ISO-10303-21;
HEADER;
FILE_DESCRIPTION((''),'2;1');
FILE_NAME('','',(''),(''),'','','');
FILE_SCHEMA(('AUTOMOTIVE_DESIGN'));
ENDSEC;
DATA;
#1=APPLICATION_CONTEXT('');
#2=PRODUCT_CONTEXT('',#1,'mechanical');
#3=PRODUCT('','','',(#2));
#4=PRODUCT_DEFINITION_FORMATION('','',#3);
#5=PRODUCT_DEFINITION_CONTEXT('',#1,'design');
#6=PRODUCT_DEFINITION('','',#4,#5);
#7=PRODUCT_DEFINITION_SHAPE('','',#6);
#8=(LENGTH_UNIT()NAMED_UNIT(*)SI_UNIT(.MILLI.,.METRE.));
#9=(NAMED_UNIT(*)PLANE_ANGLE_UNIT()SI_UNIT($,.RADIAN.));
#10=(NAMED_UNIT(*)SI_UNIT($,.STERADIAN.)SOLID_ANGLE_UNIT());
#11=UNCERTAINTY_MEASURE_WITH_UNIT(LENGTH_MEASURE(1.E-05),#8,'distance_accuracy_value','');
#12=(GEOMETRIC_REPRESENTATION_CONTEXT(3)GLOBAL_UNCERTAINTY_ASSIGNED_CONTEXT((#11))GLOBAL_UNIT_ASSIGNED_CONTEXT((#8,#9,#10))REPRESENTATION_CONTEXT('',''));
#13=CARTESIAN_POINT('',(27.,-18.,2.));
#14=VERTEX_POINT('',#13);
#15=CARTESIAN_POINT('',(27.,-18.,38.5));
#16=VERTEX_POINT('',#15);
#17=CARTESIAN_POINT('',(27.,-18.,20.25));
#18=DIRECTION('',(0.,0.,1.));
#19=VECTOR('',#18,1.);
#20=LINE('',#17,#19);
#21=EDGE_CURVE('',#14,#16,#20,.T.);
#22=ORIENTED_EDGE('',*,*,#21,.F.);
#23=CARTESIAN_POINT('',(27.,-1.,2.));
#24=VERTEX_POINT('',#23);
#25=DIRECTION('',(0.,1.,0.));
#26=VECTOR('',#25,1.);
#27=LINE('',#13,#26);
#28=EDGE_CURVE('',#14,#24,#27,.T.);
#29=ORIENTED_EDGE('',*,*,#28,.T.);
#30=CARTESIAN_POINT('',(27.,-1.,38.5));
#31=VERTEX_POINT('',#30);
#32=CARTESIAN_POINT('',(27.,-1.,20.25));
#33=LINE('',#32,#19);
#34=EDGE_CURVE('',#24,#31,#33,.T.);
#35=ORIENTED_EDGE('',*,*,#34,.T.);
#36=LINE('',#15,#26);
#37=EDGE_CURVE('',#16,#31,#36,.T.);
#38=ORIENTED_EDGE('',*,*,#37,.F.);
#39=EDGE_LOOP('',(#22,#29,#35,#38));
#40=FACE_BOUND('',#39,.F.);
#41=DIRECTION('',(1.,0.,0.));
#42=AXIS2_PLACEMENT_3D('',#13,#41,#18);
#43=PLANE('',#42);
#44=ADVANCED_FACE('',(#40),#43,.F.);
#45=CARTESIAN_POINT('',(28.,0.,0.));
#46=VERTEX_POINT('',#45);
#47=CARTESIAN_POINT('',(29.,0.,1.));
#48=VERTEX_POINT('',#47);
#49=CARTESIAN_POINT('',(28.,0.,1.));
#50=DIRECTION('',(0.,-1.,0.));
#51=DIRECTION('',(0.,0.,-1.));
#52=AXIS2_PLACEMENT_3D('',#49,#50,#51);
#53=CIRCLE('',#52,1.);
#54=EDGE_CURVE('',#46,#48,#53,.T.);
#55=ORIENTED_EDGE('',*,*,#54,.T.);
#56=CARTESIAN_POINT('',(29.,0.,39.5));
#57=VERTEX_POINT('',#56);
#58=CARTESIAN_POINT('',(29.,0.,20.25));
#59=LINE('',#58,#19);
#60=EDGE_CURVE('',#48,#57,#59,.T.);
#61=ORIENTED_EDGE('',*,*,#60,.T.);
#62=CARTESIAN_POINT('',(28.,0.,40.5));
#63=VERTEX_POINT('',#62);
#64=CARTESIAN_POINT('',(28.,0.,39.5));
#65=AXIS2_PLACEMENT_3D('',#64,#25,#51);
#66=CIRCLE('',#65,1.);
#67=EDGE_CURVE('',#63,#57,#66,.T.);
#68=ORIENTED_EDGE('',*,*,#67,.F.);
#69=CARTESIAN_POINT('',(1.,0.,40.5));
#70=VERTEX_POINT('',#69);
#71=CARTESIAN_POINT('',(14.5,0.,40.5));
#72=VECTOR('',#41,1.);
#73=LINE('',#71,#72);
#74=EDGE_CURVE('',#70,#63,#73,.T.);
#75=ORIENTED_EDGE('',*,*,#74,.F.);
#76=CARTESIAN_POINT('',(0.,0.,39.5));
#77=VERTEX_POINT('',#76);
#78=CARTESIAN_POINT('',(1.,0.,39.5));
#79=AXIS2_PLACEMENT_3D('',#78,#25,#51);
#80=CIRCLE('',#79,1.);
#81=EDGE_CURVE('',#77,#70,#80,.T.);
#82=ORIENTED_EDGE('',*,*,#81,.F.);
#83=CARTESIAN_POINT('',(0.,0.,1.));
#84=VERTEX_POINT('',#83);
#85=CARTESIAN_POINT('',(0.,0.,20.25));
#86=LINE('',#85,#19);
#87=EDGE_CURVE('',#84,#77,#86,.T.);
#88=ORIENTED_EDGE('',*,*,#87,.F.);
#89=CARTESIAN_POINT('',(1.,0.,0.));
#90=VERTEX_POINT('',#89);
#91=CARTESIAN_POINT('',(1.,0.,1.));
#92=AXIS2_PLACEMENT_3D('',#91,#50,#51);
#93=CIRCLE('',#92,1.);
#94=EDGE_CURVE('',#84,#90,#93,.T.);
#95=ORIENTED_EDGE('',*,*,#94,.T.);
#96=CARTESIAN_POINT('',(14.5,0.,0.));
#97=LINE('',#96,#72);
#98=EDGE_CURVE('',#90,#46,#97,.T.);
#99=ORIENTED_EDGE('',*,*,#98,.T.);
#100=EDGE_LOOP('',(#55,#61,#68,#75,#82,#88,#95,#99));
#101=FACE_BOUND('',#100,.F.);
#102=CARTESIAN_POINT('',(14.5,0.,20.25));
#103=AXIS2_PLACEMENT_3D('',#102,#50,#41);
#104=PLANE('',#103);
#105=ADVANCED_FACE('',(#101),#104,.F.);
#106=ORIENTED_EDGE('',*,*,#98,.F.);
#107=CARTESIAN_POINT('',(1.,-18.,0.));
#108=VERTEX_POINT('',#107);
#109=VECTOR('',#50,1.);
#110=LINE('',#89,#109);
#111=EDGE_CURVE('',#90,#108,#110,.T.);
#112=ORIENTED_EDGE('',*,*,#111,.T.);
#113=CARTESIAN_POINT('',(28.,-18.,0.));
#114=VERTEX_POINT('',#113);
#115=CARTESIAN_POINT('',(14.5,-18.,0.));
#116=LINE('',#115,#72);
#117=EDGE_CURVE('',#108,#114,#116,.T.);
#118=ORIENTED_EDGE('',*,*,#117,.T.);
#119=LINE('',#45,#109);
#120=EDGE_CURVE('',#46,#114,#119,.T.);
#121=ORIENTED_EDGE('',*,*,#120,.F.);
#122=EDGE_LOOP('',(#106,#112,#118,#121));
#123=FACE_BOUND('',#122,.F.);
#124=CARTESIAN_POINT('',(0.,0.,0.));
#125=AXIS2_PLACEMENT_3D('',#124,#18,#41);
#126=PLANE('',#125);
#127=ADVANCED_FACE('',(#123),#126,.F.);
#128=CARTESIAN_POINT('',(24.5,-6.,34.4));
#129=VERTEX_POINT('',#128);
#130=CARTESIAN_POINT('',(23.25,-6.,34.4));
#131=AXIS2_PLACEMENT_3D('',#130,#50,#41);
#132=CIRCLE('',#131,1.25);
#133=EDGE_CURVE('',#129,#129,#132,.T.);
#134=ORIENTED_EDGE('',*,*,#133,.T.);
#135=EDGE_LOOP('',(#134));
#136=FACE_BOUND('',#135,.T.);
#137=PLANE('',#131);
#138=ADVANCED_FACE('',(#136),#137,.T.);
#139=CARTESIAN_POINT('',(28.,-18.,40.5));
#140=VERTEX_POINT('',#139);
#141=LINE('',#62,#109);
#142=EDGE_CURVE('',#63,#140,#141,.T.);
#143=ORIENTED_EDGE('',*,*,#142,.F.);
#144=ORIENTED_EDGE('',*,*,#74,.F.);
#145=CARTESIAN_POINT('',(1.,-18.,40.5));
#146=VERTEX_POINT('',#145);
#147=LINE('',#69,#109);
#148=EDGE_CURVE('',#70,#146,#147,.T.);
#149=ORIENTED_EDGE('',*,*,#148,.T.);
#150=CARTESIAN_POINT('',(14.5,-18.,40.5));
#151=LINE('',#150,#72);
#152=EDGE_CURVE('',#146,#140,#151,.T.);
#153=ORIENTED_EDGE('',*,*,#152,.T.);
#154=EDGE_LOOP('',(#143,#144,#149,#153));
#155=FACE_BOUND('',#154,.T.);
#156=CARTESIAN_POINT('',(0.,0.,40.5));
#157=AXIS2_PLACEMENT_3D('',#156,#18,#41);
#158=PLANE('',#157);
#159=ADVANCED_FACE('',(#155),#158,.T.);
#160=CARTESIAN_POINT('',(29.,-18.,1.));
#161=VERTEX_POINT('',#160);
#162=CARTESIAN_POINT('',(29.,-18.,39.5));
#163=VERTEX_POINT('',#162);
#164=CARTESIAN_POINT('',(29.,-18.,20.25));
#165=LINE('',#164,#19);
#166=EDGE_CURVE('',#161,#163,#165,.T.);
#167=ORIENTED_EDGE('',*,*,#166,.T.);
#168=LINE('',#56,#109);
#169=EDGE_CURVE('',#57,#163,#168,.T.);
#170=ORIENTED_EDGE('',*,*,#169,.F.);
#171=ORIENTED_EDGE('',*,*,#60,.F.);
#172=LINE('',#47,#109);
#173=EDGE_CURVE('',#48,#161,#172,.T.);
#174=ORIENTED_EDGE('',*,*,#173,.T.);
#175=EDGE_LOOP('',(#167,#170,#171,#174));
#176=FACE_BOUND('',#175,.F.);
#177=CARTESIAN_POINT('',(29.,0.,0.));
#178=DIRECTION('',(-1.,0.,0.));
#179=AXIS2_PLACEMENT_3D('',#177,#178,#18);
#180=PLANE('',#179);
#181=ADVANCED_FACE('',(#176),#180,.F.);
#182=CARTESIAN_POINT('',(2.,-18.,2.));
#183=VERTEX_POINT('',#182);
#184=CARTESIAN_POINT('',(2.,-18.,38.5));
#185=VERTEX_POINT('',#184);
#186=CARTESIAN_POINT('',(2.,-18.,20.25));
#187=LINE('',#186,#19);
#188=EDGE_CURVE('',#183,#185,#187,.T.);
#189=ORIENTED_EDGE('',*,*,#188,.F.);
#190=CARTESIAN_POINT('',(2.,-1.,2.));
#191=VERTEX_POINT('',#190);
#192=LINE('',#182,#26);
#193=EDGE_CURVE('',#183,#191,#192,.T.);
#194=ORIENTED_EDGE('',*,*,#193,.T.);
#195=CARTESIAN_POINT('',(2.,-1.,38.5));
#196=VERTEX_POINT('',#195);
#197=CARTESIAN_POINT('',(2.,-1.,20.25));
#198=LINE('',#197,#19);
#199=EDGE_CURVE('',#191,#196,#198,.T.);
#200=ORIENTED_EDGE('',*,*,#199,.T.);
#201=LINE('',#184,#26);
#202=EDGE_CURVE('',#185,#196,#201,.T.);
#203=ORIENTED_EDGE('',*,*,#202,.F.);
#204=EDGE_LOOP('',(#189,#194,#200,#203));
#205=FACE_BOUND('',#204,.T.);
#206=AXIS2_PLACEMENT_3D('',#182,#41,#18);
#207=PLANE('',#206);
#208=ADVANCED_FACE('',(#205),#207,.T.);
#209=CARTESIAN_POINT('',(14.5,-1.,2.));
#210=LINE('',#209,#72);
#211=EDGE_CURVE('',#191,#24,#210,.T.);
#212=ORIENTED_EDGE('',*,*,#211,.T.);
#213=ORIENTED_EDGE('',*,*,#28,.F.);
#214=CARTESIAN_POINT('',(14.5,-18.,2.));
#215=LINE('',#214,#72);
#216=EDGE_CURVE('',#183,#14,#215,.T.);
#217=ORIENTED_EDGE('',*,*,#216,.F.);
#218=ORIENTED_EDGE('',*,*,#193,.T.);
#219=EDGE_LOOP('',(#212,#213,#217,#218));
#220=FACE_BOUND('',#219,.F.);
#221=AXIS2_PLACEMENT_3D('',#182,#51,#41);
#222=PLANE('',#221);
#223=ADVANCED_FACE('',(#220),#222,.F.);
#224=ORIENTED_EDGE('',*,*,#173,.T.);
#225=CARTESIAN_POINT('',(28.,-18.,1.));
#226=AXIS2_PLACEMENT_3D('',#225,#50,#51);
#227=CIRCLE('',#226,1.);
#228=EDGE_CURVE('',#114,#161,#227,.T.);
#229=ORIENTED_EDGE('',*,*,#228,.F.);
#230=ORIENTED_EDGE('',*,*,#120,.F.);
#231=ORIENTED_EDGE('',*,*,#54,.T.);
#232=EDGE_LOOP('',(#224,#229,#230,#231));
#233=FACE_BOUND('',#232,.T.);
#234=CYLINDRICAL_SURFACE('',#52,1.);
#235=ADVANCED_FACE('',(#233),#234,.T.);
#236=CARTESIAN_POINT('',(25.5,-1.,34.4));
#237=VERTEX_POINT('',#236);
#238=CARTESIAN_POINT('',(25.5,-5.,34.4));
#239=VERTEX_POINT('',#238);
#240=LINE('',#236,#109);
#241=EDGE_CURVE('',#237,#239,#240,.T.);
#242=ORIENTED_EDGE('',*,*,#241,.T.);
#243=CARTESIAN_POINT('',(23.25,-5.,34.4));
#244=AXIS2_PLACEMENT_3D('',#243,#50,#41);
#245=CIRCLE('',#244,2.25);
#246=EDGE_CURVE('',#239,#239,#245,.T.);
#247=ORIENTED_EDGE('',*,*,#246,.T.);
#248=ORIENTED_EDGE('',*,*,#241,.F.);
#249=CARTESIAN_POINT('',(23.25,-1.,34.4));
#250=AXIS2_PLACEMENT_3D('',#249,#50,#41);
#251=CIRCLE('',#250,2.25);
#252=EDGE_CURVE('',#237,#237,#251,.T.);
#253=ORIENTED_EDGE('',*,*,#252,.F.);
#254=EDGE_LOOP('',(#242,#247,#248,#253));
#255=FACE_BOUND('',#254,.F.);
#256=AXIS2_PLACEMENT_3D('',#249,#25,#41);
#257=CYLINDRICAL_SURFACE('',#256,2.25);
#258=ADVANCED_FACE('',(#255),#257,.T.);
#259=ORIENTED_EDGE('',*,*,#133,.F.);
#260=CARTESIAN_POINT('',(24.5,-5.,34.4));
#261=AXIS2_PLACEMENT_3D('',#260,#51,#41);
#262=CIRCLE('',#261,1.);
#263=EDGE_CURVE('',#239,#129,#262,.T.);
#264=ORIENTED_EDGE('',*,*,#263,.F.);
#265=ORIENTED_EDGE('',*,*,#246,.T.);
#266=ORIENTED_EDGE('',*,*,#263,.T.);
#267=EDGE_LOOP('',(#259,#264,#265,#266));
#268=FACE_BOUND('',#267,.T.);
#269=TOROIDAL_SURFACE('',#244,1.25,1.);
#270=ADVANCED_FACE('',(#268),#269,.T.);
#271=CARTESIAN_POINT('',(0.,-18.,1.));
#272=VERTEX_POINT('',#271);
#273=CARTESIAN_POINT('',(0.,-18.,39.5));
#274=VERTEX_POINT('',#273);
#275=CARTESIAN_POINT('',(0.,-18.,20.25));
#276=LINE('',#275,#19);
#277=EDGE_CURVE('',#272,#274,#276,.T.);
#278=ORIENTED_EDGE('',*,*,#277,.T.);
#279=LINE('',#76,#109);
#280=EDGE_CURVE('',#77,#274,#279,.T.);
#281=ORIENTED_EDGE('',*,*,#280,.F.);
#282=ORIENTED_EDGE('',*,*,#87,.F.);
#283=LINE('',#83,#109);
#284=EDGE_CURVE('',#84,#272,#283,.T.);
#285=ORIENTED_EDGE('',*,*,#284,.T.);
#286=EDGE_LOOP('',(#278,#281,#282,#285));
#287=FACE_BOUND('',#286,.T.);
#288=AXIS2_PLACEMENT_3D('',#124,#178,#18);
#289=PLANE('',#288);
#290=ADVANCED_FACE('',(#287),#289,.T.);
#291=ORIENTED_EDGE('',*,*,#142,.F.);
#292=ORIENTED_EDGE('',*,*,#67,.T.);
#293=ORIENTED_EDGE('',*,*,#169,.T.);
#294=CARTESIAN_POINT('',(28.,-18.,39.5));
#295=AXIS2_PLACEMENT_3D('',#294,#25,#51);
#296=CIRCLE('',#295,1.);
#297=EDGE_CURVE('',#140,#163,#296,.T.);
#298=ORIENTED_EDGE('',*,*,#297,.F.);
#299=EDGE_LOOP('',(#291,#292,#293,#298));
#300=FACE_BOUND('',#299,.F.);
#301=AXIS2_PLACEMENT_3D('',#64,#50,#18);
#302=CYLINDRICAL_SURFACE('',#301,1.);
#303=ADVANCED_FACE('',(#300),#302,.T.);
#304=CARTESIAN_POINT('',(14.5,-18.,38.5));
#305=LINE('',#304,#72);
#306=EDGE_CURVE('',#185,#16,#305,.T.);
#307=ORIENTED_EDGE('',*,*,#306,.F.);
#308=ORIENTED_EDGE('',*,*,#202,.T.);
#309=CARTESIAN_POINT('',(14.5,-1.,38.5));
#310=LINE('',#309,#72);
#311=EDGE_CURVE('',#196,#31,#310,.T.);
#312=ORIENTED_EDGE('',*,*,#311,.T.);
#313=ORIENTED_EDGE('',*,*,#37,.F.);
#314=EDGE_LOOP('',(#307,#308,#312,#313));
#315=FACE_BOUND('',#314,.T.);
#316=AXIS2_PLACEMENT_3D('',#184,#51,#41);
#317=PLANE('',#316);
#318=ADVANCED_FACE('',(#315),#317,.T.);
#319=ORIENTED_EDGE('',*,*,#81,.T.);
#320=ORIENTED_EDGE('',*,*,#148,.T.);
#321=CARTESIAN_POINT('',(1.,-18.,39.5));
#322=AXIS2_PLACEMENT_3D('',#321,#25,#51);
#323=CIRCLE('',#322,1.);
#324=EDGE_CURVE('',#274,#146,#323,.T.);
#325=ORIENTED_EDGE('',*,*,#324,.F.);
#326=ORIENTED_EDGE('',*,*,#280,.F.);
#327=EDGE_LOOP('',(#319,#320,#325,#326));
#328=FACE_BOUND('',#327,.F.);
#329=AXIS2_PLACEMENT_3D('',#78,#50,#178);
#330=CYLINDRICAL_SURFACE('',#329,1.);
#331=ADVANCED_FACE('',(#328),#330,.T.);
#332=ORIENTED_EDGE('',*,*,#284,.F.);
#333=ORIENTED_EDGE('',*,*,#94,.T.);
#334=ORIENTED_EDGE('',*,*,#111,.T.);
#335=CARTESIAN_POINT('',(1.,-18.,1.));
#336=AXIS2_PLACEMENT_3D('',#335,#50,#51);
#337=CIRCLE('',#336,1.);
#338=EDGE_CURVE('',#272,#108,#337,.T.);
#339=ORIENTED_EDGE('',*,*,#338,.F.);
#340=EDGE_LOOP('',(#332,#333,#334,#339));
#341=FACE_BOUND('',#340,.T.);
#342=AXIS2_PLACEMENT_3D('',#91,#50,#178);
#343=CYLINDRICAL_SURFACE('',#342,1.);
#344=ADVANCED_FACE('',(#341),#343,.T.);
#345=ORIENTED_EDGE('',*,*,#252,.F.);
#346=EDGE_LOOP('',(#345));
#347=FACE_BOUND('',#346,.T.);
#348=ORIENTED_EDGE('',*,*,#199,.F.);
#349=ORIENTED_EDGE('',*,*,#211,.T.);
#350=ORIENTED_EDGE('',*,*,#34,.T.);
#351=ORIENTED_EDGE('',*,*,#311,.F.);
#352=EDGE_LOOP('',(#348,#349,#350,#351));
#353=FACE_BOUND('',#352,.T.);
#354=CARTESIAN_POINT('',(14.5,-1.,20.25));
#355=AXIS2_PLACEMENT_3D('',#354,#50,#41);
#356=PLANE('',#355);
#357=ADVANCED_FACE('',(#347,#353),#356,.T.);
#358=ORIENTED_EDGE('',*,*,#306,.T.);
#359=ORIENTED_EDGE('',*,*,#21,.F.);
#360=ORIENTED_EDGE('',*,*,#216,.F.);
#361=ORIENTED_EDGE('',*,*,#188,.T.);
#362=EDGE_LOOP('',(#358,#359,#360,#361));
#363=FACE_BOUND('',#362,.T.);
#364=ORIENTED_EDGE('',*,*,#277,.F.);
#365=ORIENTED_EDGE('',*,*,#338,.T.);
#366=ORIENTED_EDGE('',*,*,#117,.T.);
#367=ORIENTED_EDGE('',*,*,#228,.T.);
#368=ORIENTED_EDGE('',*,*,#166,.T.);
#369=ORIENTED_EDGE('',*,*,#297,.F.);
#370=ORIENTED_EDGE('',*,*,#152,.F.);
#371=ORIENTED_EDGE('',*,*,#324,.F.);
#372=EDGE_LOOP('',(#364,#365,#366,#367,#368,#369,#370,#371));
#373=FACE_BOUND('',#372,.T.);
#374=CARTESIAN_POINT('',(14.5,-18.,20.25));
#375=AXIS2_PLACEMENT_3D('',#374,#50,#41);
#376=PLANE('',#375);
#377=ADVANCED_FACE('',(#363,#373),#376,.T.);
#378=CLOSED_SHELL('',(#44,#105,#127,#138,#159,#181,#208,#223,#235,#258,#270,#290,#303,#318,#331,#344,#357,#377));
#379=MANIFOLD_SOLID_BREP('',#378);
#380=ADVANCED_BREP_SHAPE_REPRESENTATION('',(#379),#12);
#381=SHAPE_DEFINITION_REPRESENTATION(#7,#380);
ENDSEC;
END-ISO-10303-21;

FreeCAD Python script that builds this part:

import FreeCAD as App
import Part
import Sketcher


def edges_at(feature, points):
    """Names of the edges that pass closest to the given points."""
    edges = feature.Shape.Edges
    near = lambda p: min(range(len(edges)), key=lambda i: edges[i].distToShape(Part.Vertex(*p))[0])
    return sorted({f"Edge{near(p) + 1}" for p in points})


def add_polygon(sketch, points):
    """Adds a closed chain of lines whose ends are joined by coincident constraints."""
    first, n = sketch.GeometryCount, len(points)
    for a, b in zip(points, points[1:] + points[:1]):
        sketch.addGeometry(Part.LineSegment(App.Vector(*a, 0), App.Vector(*b, 0)), False)
    for i in range(n):
        sketch.addConstraint(Sketcher.Constraint("Coincident", first + i, 2, first + (i + 1) % n, 1))

doc = App.newDocument("Part")
body = doc.addObject("PartDesign::Body", "Body")

sketch1 = body.newObject("Sketcher::SketchObject", "Sketch")
sketch1.AttachmentSupport = (doc.getObject("XZ_Plane"), [""])
sketch1.MapMode = "FlatFace"
add_polygon(sketch1, [(0, 40), (0, 0), (29, 0), (29, 40)])
sketch1.addConstraint(Sketcher.Constraint("Vertical", 0))
sketch1.addConstraint(Sketcher.Constraint("Horizontal", 1))
sketch1.addConstraint(Sketcher.Constraint("Vertical", 2))
sketch1.addConstraint(Sketcher.Constraint("Horizontal", 3))
sketch1.addConstraint(Sketcher.Constraint("Coincident", 0, 2, -1, 1))
sketch1.addConstraint(Sketcher.Constraint("DistanceX", 1, 1, 1, 2, 29.0))
sketch1.addConstraint(Sketcher.Constraint("DistanceY", 0, 2, 0, 1, 40.5))
pad1 = body.newObject("PartDesign::Pad", "Pad")
pad1.Profile = sketch1
pad1.Length = 18

sketch2 = body.newObject("Sketcher::SketchObject", "Sketch001")
sketch2.AttachmentSupport = (doc.getObject("XZ_Plane"), [""])
sketch2.MapMode = "FlatFace"
sketch2.AttachmentOffset = App.Placement(App.Vector(0, 0, 18), App.Rotation())
add_polygon(sketch2, [(2, 38), (2, 2), (27, 2), (27, 38)])
sketch2.addConstraint(Sketcher.Constraint("Vertical", 0))
sketch2.addConstraint(Sketcher.Constraint("Horizontal", 1))
sketch2.addConstraint(Sketcher.Constraint("Vertical", 2))
sketch2.addConstraint(Sketcher.Constraint("Horizontal", 3))
sketch2.addConstraint(Sketcher.Constraint("DistanceX", 1, 1, 1, 2, 25.0))
sketch2.addConstraint(Sketcher.Constraint("DistanceY", 0, 2, 0, 1, 36.5))
sketch2.addConstraint(Sketcher.Constraint("DistanceX", -1, 1, 0, 2, 2.0))
sketch2.addConstraint(Sketcher.Constraint("DistanceY", -1, 1, 0, 2, 2.0))
pocket1 = body.newObject("PartDesign::Pocket", "Pocket")
pocket1.Profile = sketch2
pocket1.Length = 17

sketch3 = body.newObject("Sketcher::SketchObject", "Sketch002")
sketch3.AttachmentSupport = (doc.getObject("XZ_Plane"), [""])
sketch3.MapMode = "FlatFace"
sketch3.AttachmentOffset = App.Placement(App.Vector(0, 0, 1), App.Rotation())
sketch3.addGeometry(Part.Circle(App.Vector(23.2, 34.4, 0), App.Vector(0, 0, 1), 2.2), False)
sketch3.addConstraint(Sketcher.Constraint("Diameter", 0, 4.5))
sketch3.addConstraint(Sketcher.Constraint("DistanceY", -1, 1, 0, 3, 34.4))
sketch3.addConstraint(Sketcher.Constraint("DistanceX", -1, 1, 0, 3, 23.25))
pad2 = body.newObject("PartDesign::Pad", "Pad001")
pad2.Profile = sketch3
pad2.Length = 5
doc.recompute()

fillet = body.newObject("PartDesign::Fillet", "Fillet")
fillet.Base = (pad2, edges_at(pad2, [
    (0, -9, 0),
    (29, -9, 0),
    (0, -9, 40.5),
    (29, -9, 40.5),
]))
fillet.Radius = 1
doc.recompute()

fillet2 = body.newObject("PartDesign::Fillet", "Fillet001")
fillet2.Base = (fillet, edges_at(fillet, [(21, -6, 34.4)]))
fillet2.Radius = 1

doc.recompute()
